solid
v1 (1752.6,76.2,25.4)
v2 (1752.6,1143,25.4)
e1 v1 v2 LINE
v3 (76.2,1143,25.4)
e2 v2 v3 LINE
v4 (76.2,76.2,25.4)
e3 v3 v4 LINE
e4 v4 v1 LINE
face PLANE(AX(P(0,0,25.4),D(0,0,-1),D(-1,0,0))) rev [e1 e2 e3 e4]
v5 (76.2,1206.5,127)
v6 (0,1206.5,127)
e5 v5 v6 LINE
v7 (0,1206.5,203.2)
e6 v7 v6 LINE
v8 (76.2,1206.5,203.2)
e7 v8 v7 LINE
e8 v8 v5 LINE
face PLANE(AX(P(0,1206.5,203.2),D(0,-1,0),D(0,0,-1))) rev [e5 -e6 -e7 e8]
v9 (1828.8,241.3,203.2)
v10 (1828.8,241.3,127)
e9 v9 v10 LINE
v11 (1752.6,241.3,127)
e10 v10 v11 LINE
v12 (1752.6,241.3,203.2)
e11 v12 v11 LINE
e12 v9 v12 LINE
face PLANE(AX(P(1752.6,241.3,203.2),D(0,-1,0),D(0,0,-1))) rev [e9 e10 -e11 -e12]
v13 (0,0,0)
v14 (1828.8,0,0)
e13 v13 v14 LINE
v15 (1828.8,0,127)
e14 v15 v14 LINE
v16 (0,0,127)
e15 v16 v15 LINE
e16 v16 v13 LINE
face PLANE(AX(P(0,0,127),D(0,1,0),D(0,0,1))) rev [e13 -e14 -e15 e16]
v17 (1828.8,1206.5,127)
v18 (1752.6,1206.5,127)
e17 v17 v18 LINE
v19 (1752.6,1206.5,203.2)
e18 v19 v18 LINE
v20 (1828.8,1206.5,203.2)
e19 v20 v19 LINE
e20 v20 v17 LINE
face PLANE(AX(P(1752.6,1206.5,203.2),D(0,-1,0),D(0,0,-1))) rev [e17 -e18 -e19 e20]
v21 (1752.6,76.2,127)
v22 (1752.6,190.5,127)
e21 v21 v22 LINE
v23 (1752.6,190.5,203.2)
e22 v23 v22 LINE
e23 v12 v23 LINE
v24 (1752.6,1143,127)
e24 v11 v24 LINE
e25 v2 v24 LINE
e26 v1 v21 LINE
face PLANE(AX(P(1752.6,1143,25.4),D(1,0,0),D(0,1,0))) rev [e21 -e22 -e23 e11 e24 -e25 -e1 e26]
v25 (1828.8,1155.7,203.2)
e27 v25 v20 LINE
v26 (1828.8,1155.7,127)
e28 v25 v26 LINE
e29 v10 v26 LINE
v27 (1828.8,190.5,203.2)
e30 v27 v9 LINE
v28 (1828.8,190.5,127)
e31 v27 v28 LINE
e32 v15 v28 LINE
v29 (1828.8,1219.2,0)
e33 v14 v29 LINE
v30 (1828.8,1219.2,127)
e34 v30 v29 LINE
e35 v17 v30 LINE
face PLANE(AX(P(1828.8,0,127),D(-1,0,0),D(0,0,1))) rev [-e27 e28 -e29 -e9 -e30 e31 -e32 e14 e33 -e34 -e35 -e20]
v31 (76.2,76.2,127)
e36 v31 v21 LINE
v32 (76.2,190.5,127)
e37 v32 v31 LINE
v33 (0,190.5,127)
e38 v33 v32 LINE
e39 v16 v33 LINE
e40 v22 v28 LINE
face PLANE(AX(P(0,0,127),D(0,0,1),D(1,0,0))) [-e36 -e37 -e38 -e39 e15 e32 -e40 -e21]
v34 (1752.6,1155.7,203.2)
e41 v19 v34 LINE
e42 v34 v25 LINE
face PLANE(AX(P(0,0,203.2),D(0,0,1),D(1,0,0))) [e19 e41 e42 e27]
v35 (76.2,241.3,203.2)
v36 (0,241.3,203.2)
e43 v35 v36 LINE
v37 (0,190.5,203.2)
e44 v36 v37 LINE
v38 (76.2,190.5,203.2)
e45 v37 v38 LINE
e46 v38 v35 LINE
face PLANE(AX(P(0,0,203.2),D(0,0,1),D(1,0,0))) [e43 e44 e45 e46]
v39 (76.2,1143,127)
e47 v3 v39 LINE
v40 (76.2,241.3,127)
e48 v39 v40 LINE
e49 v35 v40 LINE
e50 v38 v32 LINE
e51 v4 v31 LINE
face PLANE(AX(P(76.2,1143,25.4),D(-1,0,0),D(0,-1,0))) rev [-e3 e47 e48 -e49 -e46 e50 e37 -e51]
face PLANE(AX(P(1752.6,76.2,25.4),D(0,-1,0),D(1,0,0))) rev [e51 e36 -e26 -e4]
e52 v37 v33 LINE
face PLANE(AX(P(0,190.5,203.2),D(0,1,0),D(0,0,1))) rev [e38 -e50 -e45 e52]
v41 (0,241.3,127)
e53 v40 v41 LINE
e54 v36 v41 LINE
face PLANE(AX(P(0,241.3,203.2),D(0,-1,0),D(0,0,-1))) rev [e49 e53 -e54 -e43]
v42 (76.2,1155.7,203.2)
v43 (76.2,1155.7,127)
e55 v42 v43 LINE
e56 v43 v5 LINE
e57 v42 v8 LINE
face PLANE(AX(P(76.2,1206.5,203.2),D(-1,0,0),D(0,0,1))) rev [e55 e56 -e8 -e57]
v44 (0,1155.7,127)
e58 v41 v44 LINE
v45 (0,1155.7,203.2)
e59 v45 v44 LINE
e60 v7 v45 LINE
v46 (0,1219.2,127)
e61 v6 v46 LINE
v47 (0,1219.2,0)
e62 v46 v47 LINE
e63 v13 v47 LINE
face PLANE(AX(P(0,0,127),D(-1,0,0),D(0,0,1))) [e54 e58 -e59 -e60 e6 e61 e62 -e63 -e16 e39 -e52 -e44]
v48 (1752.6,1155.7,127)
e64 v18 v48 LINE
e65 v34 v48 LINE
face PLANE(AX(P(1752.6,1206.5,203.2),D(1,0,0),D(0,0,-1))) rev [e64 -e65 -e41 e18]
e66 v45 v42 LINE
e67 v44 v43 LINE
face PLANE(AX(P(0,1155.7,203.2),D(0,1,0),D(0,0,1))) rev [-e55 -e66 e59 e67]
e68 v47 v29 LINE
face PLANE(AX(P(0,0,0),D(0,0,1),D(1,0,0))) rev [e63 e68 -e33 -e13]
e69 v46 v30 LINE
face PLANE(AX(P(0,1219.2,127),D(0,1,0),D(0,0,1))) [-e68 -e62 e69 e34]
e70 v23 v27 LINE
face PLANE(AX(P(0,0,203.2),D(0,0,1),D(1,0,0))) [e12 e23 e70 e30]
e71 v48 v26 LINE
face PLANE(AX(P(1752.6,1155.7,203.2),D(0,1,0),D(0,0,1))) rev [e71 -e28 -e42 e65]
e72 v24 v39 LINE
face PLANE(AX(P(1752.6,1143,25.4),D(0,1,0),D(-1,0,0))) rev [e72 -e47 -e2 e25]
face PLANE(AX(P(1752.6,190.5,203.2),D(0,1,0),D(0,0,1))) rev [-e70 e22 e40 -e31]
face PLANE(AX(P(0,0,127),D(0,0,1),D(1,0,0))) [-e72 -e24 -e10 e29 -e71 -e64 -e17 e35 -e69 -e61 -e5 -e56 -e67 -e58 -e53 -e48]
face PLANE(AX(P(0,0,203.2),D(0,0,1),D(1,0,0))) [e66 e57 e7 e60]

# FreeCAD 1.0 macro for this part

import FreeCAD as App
import Part
import Sketcher
from FreeCAD import Vector
Q = App.Units.Quantity

doc = App.newDocument("Part")
params = doc.addObject("Spreadsheet::Sheet", "Params")
for row, (alias, value) in enumerate([
    ("sketch1_width", "72 in"),
    ("sketch1_height", "48 in"),
    ("pad1_length", "5 in"),
    ("sketch2_width", "66 in"),
    ("sketch2_height", "42 in"),
    ("pocket1_length", "4 in"),
    ("sketch3_width", "3 in"),
    ("sketch3_height", "2 in"),
    ("pad2_length", "3 in"),
    ("sketch4_width", "3 in"),
    ("sketch4_height", "2 in"),
    ("pad3_length", "3 in"),
    ("sketch5_width", "3 in"),
    ("sketch5_height", "2 in"),
    ("pad4_length", "3 in"),
], start=1):
    params.set(f"A{row}", alias)
    params.set(f"B{row}", "=" + value)
    params.setAlias(f"B{row}", alias)

body = doc.addObject("PartDesign::Body", "Body")

sketch1 = doc.addObject("Sketcher::SketchObject", "Sketch")
body.addObject(sketch1)
sketch1.AttachmentSupport = (doc.XY_Plane, [""])
sketch1.MapMode = "FlatFace"
sketch1.addGeometry([
    Part.LineSegment(Vector(0, 1219, 0), Vector(0, 0, 0)),
    Part.LineSegment(Vector(0, 0, 0), Vector(1829, 0, 0)),
    Part.LineSegment(Vector(1829, 0, 0), Vector(1829, 1219, 0)),
    Part.LineSegment(Vector(1829, 1219, 0), Vector(0, 1219, 0)),
], False)
sketch1.addConstraint([
    Sketcher.Constraint("Coincident", 0, 2, 1, 1),
    Sketcher.Constraint("Coincident", 1, 2, 2, 1),
    Sketcher.Constraint("Coincident", 2, 2, 3, 1),
    Sketcher.Constraint("Coincident", 3, 2, 0, 1),
    Sketcher.Constraint("Vertical", 0),
    Sketcher.Constraint("Horizontal", 1),
    Sketcher.Constraint("Vertical", 2),
    Sketcher.Constraint("Horizontal", 3),
    Sketcher.Constraint("Coincident", 0, 2, -1, 1),
    Sketcher.Constraint("DistanceX", 1, 1, 1, 2, Q("72 in")),
    Sketcher.Constraint("DistanceY", 0, 2, 0, 1, Q("48 in")),
])
sketch1.setExpression("Constraints[9]", "Params.sketch1_width")
sketch1.setExpression("Constraints[10]", "Params.sketch1_height")
pad1 = doc.addObject("PartDesign::Pad", "Pad")
body.addObject(pad1)
pad1.Profile = sketch1
pad1.setExpression("Length", "Params.pad1_length")

sketch2 = doc.addObject("Sketcher::SketchObject", "Sketch001")
body.addObject(sketch2)
sketch2.AttachmentSupport = (doc.XY_Plane, [""])
sketch2.MapMode = "FlatFace"
sketch2.AttachmentOffset = App.Placement(Vector(0, 0, 5 * 25.4), App.Rotation())
sketch2.addGeometry([
    Part.LineSegment(Vector(76, 1143, 0), Vector(76, 76, 0)),
    Part.LineSegment(Vector(76, 76, 0), Vector(1753, 76, 0)),
    Part.LineSegment(Vector(1753, 76, 0), Vector(1753, 1143, 0)),
    Part.LineSegment(Vector(1753, 1143, 0), Vector(76, 1143, 0)),
], False)
sketch2.addConstraint([
    Sketcher.Constraint("Coincident", 0, 2, 1, 1),
    Sketcher.Constraint("Coincident", 1, 2, 2, 1),
    Sketcher.Constraint("Coincident", 2, 2, 3, 1),
    Sketcher.Constraint("Coincident", 3, 2, 0, 1),
    Sketcher.Constraint("Vertical", 0),
    Sketcher.Constraint("Horizontal", 1),
    Sketcher.Constraint("Vertical", 2),
    Sketcher.Constraint("Horizontal", 3),
    Sketcher.Constraint("DistanceX", 1, 1, 1, 2, Q("66 in")),
    Sketcher.Constraint("DistanceY", 0, 2, 0, 1, Q("42 in")),
    Sketcher.Constraint("DistanceX", -1, 1, 0, 2, Q("3 in")),
    Sketcher.Constraint("DistanceY", -1, 1, 0, 2, Q("3 in")),
])
sketch2.setExpression("Constraints[8]", "Params.sketch2_width")
sketch2.setExpression("Constraints[9]", "Params.sketch2_height")
pocket1 = doc.addObject("PartDesign::Pocket", "Pocket")
body.addObject(pocket1)
pocket1.Profile = sketch2
pocket1.setExpression("Length", "Params.pocket1_length")

sketch3 = doc.addObject("Sketcher::SketchObject", "Sketch002")
body.addObject(sketch3)
sketch3.AttachmentSupport = (doc.XY_Plane, [""])
sketch3.MapMode = "FlatFace"
sketch3.AttachmentOffset = App.Placement(Vector(0, 0, 5 * 25.4), App.Rotation())
sketch3.addGeometry([
    Part.LineSegment(Vector(0, 1206, 0), Vector(0, 1156, 0)),
    Part.LineSegment(Vector(0, 1156, 0), Vector(76, 1156, 0)),
    Part.LineSegment(Vector(76, 1156, 0), Vector(76, 1206, 0)),
    Part.LineSegment(Vector(76, 1206, 0), Vector(0, 1206, 0)),
], False)
sketch3.addConstraint([
    Sketcher.Constraint("Coincident", 0, 2, 1, 1),
    Sketcher.Constraint("Coincident", 1, 2, 2, 1),
    Sketcher.Constraint("Coincident", 2, 2, 3, 1),
    Sketcher.Constraint("Coincident", 3, 2, 0, 1),
    Sketcher.Constraint("Vertical", 0),
    Sketcher.Constraint("Horizontal", 1),
    Sketcher.Constraint("Vertical", 2),
    Sketcher.Constraint("Horizontal", 3),
    Sketcher.Constraint("PointOnObject", 0, 2, -2),
    Sketcher.Constraint("DistanceX", 1, 1, 1, 2, Q("3 in")),
    Sketcher.Constraint("DistanceY", 0, 2, 0, 1, Q("2 in")),
    Sketcher.Constraint("DistanceY", -1, 1, 0, 2, Q("45.5 in")),
])
sketch3.setExpression("Constraints[9]", "Params.sketch3_width")
sketch3.setExpression("Constraints[10]", "Params.sketch3_height")
pad2 = doc.addObject("PartDesign::Pad", "Pad001")
body.addObject(pad2)
pad2.Profile = sketch3
pad2.setExpression("Length", "Params.pad2_length")

sketch4 = doc.addObject("Sketcher::SketchObject", "Sketch003")
body.addObject(sketch4)
sketch4.AttachmentSupport = (doc.XY_Plane, [""])
sketch4.MapMode = "FlatFace"
sketch4.AttachmentOffset = App.Placement(Vector(0, 0, 5 * 25.4), App.Rotation())
sketch4.addGeometry([
    Part.LineSegment(Vector(1753, 1206, 0), Vector(1753, 1156, 0)),
    Part.LineSegment(Vector(1753, 1156, 0), Vector(1829, 1156, 0)),
    Part.LineSegment(Vector(1829, 1156, 0), Vector(1829, 1206, 0)),
    Part.LineSegment(Vector(1829, 1206, 0), Vector(1753, 1206, 0)),
], False)
sketch4.addConstraint([
    Sketcher.Constraint("Coincident", 0, 2, 1, 1),
    Sketcher.Constraint("Coincident", 1, 2, 2, 1),
    Sketcher.Constraint("Coincident", 2, 2, 3, 1),
    Sketcher.Constraint("Coincident", 3, 2, 0, 1),
    Sketcher.Constraint("Vertical", 0),
    Sketcher.Constraint("Horizontal", 1),
    Sketcher.Constraint("Vertical", 2),
    Sketcher.Constraint("Horizontal", 3),
    Sketcher.Constraint("DistanceX", 1, 1, 1, 2, Q("3 in")),
    Sketcher.Constraint("DistanceY", 0, 2, 0, 1, Q("2 in")),
    Sketcher.Constraint("DistanceX", -1, 1, 0, 2, Q("69 in")),
    Sketcher.Constraint("DistanceY", -1, 1, 0, 2, Q("45.5 in")),
])
sketch4.setExpression("Constraints[8]", "Params.sketch4_width")
sketch4.setExpression("Constraints[9]", "Params.sketch4_height")
pad3 = doc.addObject("PartDesign::Pad", "Pad002")
body.addObject(pad3)
pad3.Profile = sketch4
pad3.setExpression("Length", "Params.pad3_length")

sketch5 = doc.addObject("Sketcher::SketchObject", "Sketch004")
body.addObject(sketch5)
sketch5.AttachmentSupport = (doc.XY_Plane, [""])
sketch5.MapMode = "FlatFace"
sketch5.AttachmentOffset = App.Placement(Vector(0, 0, 5 * 25.4), App.Rotation())
sketch5.addGeometry([
    Part.LineSegment(Vector(0, 241, 0), Vector(0, 190, 0)),
    Part.LineSegment(Vector(0, 190, 0), Vector(76, 190, 0)),
    Part.LineSegment(Vector(76, 190, 0), Vector(76, 241, 0)),
    Part.LineSegment(Vector(76, 241, 0), Vector(0, 241, 0)),
    Part.LineSegment(Vector(1753, 241, 0), Vector(1753, 190, 0)),
    Part.LineSegment(Vector(1753, 190, 0), Vector(1829, 190, 0)),
    Part.LineSegment(Vector(1829, 190, 0), Vector(1829, 241, 0)),
    Part.LineSegment(Vector(1829, 241, 0), Vector(1753, 241, 0)),
], False)
sketch5.addConstraint([
    Sketcher.Constraint("Coincident", 0, 2, 1, 1),
    Sketcher.Constraint("Coincident", 1, 2, 2, 1),
    Sketcher.Constraint("Coincident", 2, 2, 3, 1),
    Sketcher.Constraint("Coincident", 3, 2, 0, 1),
    Sketcher.Constraint("Coincident", 4, 2, 5, 1),
    Sketcher.Constraint("Coincident", 5, 2, 6, 1),
    Sketcher.Constraint("Coincident", 6, 2, 7, 1),
    Sketcher.Constraint("Coincident", 7, 2, 4, 1),
    Sketcher.Constraint("Vertical", 0),
    Sketcher.Constraint("Horizontal", 1),
    Sketcher.Constraint("Vertical", 2),
    Sketcher.Constraint("Horizontal", 3),
    Sketcher.Constraint("Vertical", 4),
    Sketcher.Constraint("Horizontal", 5),
    Sketcher.Constraint("Vertical", 6),
    Sketcher.Constraint("Horizontal", 7),
    Sketcher.Constraint("PointOnObject", 0, 2, -2),
    Sketcher.Constraint("Horizontal", 1, 2, 4, 2),
    Sketcher.Constraint("Horizontal", 3, 2, 6, 2),
    Sketcher.Constraint("Equal", 3, 5),
    Sketcher.Constraint("DistanceX", 1, 1, 1, 2, Q("3 in")),
    Sketcher.Constraint("DistanceY", 0, 2, 0, 1, Q("2 in")),
    Sketcher.Constraint("DistanceX", -1, 1, 4, 2, Q("69 in")),
    Sketcher.Constraint("DistanceY", -1, 1, 0, 2, Q("7.5 in")),
])
sketch5.setExpression("Constraints[20]", "Params.sketch5_width")
sketch5.setExpression("Constraints[21]", "Params.sketch5_height")
pad4 = doc.addObject("PartDesign::Pad", "Pad003")
body.addObject(pad4)
pad4.Profile = sketch5
pad4.setExpression("Length", "Params.pad4_length")

doc.recompute()
